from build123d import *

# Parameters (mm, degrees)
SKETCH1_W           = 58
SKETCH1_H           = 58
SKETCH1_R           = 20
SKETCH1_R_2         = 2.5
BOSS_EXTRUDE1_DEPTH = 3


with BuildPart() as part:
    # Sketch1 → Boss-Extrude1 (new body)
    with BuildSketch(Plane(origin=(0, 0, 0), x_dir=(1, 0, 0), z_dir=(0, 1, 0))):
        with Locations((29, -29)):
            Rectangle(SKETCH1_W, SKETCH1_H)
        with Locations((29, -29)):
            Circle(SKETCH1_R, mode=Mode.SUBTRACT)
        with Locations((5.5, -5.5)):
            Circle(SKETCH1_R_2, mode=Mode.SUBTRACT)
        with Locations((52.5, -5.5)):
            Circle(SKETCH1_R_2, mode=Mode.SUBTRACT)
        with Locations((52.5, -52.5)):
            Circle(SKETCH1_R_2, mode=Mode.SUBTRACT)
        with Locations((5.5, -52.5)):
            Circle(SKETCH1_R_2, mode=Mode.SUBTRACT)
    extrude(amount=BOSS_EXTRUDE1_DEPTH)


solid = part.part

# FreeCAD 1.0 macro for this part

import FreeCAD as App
import Part
import Sketcher

doc = App.newDocument("Part")
body = doc.addObject("PartDesign::Body", "Body")

# Sketch on XZ plane
sketch1 = body.newObject("Sketcher::SketchObject", "Sketch")
sketch1.AttachmentSupport = (doc.getObject("XZ_Plane"), [""])
sketch1.MapMode = "FlatFace"
sketch1.addGeometry(Part.LineSegment(App.Vector(0, 0, 0), App.Vector(0, 58, 0)), False)
sketch1.addGeometry(Part.LineSegment(App.Vector(0, 58, 0), App.Vector(58, 58, 0)), False)
sketch1.addGeometry(Part.LineSegment(App.Vector(58, 58, 0), App.Vector(58, 0, 0)), False)
sketch1.addGeometry(Part.LineSegment(App.Vector(58, 0, 0), App.Vector(0, 0, 0)), False)
sketch1.addGeometry(Part.Circle(App.Vector(5.5, 52.5, 0), App.Vector(0, 0, 1), 2.5), False)
sketch1.addGeometry(Part.Circle(App.Vector(52.5, 52.5, 0), App.Vector(0, 0, 1), 2.5), False)
sketch1.addGeometry(Part.Circle(App.Vector(5.5, 5.5, 0), App.Vector(0, 0, 1), 2.5), False)
sketch1.addGeometry(Part.Circle(App.Vector(29, 29, 0), App.Vector(0, 0, 1), 20), False)
sketch1.addGeometry(Part.Circle(App.Vector(52.5, 5.5, 0), App.Vector(0, 0, 1), 2.5), False)
sketch1.addConstraint(Sketcher.Constraint("Coincident", 0, 2, 1, 1))
sketch1.addConstraint(Sketcher.Constraint("Coincident", 1, 2, 2, 1))
sketch1.addConstraint(Sketcher.Constraint("Coincident", 2, 2, 3, 1))
sketch1.addConstraint(Sketcher.Constraint("Coincident", 3, 2, 0, 1))
sketch1.addConstraint(Sketcher.Constraint("Vertical", 0))
sketch1.addConstraint(Sketcher.Constraint("Horizontal", 1))
sketch1.addConstraint(Sketcher.Constraint("Vertical", 2))
sketch1.addConstraint(Sketcher.Constraint("Horizontal", 3))
sketch1.addConstraint(Sketcher.Constraint("Coincident", 3, 2, -1, 1))
sketch1.addConstraint(Sketcher.Constraint("Equal", 4, 5))
sketch1.addConstraint(Sketcher.Constraint("Equal", 5, 6))
sketch1.addConstraint(Sketcher.Constraint("Equal", 6, 8))
sketch1.addConstraint(Sketcher.Constraint("Horizontal", 4, 3, 5, 3))
sketch1.addConstraint(Sketcher.Constraint("Horizontal", 6, 3, 8, 3))
sketch1.addConstraint(Sketcher.Constraint("Vertical", 4, 3, 6, 3))
sketch1.addConstraint(Sketcher.Constraint("Vertical", 5, 3, 8, 3))
sketch1.addConstraint(Sketcher.Constraint("Equal", 3, 0))
sketch1.addConstraint(Sketcher.Constraint("Diameter", 4, 5.0))
sketch1.addConstraint(Sketcher.Constraint("Diameter", 7, 40.0))
sketch1.addConstraint(Sketcher.Constraint("DistanceX", 1, 1, 1, 2, 58.0))
sketch1.addConstraint(Sketcher.Constraint("DistanceX", -1, 1, 7, 3, 29.0))
sketch1.addConstraint(Sketcher.Constraint("DistanceY", -1, 1, 7, 3, 29.0))
sketch1.addConstraint(Sketcher.Constraint("DistanceX", 4, 3, 5, 3, 47.0))
sketch1.addConstraint(Sketcher.Constraint("DistanceY", 6, 3, 4, 3, 47.0))
sketch1.addConstraint(Sketcher.Constraint("DistanceX", -1, 1, 4, 3, 5.5))
sketch1.addConstraint(Sketcher.Constraint("DistanceY", -1, 1, 4, 3, 52.5))
pad1 = body.newObject("PartDesign::Pad", "Pad")
pad1.Profile = sketch1
pad1.Length = 3
pad1.Reversed = True

doc.recompute()
